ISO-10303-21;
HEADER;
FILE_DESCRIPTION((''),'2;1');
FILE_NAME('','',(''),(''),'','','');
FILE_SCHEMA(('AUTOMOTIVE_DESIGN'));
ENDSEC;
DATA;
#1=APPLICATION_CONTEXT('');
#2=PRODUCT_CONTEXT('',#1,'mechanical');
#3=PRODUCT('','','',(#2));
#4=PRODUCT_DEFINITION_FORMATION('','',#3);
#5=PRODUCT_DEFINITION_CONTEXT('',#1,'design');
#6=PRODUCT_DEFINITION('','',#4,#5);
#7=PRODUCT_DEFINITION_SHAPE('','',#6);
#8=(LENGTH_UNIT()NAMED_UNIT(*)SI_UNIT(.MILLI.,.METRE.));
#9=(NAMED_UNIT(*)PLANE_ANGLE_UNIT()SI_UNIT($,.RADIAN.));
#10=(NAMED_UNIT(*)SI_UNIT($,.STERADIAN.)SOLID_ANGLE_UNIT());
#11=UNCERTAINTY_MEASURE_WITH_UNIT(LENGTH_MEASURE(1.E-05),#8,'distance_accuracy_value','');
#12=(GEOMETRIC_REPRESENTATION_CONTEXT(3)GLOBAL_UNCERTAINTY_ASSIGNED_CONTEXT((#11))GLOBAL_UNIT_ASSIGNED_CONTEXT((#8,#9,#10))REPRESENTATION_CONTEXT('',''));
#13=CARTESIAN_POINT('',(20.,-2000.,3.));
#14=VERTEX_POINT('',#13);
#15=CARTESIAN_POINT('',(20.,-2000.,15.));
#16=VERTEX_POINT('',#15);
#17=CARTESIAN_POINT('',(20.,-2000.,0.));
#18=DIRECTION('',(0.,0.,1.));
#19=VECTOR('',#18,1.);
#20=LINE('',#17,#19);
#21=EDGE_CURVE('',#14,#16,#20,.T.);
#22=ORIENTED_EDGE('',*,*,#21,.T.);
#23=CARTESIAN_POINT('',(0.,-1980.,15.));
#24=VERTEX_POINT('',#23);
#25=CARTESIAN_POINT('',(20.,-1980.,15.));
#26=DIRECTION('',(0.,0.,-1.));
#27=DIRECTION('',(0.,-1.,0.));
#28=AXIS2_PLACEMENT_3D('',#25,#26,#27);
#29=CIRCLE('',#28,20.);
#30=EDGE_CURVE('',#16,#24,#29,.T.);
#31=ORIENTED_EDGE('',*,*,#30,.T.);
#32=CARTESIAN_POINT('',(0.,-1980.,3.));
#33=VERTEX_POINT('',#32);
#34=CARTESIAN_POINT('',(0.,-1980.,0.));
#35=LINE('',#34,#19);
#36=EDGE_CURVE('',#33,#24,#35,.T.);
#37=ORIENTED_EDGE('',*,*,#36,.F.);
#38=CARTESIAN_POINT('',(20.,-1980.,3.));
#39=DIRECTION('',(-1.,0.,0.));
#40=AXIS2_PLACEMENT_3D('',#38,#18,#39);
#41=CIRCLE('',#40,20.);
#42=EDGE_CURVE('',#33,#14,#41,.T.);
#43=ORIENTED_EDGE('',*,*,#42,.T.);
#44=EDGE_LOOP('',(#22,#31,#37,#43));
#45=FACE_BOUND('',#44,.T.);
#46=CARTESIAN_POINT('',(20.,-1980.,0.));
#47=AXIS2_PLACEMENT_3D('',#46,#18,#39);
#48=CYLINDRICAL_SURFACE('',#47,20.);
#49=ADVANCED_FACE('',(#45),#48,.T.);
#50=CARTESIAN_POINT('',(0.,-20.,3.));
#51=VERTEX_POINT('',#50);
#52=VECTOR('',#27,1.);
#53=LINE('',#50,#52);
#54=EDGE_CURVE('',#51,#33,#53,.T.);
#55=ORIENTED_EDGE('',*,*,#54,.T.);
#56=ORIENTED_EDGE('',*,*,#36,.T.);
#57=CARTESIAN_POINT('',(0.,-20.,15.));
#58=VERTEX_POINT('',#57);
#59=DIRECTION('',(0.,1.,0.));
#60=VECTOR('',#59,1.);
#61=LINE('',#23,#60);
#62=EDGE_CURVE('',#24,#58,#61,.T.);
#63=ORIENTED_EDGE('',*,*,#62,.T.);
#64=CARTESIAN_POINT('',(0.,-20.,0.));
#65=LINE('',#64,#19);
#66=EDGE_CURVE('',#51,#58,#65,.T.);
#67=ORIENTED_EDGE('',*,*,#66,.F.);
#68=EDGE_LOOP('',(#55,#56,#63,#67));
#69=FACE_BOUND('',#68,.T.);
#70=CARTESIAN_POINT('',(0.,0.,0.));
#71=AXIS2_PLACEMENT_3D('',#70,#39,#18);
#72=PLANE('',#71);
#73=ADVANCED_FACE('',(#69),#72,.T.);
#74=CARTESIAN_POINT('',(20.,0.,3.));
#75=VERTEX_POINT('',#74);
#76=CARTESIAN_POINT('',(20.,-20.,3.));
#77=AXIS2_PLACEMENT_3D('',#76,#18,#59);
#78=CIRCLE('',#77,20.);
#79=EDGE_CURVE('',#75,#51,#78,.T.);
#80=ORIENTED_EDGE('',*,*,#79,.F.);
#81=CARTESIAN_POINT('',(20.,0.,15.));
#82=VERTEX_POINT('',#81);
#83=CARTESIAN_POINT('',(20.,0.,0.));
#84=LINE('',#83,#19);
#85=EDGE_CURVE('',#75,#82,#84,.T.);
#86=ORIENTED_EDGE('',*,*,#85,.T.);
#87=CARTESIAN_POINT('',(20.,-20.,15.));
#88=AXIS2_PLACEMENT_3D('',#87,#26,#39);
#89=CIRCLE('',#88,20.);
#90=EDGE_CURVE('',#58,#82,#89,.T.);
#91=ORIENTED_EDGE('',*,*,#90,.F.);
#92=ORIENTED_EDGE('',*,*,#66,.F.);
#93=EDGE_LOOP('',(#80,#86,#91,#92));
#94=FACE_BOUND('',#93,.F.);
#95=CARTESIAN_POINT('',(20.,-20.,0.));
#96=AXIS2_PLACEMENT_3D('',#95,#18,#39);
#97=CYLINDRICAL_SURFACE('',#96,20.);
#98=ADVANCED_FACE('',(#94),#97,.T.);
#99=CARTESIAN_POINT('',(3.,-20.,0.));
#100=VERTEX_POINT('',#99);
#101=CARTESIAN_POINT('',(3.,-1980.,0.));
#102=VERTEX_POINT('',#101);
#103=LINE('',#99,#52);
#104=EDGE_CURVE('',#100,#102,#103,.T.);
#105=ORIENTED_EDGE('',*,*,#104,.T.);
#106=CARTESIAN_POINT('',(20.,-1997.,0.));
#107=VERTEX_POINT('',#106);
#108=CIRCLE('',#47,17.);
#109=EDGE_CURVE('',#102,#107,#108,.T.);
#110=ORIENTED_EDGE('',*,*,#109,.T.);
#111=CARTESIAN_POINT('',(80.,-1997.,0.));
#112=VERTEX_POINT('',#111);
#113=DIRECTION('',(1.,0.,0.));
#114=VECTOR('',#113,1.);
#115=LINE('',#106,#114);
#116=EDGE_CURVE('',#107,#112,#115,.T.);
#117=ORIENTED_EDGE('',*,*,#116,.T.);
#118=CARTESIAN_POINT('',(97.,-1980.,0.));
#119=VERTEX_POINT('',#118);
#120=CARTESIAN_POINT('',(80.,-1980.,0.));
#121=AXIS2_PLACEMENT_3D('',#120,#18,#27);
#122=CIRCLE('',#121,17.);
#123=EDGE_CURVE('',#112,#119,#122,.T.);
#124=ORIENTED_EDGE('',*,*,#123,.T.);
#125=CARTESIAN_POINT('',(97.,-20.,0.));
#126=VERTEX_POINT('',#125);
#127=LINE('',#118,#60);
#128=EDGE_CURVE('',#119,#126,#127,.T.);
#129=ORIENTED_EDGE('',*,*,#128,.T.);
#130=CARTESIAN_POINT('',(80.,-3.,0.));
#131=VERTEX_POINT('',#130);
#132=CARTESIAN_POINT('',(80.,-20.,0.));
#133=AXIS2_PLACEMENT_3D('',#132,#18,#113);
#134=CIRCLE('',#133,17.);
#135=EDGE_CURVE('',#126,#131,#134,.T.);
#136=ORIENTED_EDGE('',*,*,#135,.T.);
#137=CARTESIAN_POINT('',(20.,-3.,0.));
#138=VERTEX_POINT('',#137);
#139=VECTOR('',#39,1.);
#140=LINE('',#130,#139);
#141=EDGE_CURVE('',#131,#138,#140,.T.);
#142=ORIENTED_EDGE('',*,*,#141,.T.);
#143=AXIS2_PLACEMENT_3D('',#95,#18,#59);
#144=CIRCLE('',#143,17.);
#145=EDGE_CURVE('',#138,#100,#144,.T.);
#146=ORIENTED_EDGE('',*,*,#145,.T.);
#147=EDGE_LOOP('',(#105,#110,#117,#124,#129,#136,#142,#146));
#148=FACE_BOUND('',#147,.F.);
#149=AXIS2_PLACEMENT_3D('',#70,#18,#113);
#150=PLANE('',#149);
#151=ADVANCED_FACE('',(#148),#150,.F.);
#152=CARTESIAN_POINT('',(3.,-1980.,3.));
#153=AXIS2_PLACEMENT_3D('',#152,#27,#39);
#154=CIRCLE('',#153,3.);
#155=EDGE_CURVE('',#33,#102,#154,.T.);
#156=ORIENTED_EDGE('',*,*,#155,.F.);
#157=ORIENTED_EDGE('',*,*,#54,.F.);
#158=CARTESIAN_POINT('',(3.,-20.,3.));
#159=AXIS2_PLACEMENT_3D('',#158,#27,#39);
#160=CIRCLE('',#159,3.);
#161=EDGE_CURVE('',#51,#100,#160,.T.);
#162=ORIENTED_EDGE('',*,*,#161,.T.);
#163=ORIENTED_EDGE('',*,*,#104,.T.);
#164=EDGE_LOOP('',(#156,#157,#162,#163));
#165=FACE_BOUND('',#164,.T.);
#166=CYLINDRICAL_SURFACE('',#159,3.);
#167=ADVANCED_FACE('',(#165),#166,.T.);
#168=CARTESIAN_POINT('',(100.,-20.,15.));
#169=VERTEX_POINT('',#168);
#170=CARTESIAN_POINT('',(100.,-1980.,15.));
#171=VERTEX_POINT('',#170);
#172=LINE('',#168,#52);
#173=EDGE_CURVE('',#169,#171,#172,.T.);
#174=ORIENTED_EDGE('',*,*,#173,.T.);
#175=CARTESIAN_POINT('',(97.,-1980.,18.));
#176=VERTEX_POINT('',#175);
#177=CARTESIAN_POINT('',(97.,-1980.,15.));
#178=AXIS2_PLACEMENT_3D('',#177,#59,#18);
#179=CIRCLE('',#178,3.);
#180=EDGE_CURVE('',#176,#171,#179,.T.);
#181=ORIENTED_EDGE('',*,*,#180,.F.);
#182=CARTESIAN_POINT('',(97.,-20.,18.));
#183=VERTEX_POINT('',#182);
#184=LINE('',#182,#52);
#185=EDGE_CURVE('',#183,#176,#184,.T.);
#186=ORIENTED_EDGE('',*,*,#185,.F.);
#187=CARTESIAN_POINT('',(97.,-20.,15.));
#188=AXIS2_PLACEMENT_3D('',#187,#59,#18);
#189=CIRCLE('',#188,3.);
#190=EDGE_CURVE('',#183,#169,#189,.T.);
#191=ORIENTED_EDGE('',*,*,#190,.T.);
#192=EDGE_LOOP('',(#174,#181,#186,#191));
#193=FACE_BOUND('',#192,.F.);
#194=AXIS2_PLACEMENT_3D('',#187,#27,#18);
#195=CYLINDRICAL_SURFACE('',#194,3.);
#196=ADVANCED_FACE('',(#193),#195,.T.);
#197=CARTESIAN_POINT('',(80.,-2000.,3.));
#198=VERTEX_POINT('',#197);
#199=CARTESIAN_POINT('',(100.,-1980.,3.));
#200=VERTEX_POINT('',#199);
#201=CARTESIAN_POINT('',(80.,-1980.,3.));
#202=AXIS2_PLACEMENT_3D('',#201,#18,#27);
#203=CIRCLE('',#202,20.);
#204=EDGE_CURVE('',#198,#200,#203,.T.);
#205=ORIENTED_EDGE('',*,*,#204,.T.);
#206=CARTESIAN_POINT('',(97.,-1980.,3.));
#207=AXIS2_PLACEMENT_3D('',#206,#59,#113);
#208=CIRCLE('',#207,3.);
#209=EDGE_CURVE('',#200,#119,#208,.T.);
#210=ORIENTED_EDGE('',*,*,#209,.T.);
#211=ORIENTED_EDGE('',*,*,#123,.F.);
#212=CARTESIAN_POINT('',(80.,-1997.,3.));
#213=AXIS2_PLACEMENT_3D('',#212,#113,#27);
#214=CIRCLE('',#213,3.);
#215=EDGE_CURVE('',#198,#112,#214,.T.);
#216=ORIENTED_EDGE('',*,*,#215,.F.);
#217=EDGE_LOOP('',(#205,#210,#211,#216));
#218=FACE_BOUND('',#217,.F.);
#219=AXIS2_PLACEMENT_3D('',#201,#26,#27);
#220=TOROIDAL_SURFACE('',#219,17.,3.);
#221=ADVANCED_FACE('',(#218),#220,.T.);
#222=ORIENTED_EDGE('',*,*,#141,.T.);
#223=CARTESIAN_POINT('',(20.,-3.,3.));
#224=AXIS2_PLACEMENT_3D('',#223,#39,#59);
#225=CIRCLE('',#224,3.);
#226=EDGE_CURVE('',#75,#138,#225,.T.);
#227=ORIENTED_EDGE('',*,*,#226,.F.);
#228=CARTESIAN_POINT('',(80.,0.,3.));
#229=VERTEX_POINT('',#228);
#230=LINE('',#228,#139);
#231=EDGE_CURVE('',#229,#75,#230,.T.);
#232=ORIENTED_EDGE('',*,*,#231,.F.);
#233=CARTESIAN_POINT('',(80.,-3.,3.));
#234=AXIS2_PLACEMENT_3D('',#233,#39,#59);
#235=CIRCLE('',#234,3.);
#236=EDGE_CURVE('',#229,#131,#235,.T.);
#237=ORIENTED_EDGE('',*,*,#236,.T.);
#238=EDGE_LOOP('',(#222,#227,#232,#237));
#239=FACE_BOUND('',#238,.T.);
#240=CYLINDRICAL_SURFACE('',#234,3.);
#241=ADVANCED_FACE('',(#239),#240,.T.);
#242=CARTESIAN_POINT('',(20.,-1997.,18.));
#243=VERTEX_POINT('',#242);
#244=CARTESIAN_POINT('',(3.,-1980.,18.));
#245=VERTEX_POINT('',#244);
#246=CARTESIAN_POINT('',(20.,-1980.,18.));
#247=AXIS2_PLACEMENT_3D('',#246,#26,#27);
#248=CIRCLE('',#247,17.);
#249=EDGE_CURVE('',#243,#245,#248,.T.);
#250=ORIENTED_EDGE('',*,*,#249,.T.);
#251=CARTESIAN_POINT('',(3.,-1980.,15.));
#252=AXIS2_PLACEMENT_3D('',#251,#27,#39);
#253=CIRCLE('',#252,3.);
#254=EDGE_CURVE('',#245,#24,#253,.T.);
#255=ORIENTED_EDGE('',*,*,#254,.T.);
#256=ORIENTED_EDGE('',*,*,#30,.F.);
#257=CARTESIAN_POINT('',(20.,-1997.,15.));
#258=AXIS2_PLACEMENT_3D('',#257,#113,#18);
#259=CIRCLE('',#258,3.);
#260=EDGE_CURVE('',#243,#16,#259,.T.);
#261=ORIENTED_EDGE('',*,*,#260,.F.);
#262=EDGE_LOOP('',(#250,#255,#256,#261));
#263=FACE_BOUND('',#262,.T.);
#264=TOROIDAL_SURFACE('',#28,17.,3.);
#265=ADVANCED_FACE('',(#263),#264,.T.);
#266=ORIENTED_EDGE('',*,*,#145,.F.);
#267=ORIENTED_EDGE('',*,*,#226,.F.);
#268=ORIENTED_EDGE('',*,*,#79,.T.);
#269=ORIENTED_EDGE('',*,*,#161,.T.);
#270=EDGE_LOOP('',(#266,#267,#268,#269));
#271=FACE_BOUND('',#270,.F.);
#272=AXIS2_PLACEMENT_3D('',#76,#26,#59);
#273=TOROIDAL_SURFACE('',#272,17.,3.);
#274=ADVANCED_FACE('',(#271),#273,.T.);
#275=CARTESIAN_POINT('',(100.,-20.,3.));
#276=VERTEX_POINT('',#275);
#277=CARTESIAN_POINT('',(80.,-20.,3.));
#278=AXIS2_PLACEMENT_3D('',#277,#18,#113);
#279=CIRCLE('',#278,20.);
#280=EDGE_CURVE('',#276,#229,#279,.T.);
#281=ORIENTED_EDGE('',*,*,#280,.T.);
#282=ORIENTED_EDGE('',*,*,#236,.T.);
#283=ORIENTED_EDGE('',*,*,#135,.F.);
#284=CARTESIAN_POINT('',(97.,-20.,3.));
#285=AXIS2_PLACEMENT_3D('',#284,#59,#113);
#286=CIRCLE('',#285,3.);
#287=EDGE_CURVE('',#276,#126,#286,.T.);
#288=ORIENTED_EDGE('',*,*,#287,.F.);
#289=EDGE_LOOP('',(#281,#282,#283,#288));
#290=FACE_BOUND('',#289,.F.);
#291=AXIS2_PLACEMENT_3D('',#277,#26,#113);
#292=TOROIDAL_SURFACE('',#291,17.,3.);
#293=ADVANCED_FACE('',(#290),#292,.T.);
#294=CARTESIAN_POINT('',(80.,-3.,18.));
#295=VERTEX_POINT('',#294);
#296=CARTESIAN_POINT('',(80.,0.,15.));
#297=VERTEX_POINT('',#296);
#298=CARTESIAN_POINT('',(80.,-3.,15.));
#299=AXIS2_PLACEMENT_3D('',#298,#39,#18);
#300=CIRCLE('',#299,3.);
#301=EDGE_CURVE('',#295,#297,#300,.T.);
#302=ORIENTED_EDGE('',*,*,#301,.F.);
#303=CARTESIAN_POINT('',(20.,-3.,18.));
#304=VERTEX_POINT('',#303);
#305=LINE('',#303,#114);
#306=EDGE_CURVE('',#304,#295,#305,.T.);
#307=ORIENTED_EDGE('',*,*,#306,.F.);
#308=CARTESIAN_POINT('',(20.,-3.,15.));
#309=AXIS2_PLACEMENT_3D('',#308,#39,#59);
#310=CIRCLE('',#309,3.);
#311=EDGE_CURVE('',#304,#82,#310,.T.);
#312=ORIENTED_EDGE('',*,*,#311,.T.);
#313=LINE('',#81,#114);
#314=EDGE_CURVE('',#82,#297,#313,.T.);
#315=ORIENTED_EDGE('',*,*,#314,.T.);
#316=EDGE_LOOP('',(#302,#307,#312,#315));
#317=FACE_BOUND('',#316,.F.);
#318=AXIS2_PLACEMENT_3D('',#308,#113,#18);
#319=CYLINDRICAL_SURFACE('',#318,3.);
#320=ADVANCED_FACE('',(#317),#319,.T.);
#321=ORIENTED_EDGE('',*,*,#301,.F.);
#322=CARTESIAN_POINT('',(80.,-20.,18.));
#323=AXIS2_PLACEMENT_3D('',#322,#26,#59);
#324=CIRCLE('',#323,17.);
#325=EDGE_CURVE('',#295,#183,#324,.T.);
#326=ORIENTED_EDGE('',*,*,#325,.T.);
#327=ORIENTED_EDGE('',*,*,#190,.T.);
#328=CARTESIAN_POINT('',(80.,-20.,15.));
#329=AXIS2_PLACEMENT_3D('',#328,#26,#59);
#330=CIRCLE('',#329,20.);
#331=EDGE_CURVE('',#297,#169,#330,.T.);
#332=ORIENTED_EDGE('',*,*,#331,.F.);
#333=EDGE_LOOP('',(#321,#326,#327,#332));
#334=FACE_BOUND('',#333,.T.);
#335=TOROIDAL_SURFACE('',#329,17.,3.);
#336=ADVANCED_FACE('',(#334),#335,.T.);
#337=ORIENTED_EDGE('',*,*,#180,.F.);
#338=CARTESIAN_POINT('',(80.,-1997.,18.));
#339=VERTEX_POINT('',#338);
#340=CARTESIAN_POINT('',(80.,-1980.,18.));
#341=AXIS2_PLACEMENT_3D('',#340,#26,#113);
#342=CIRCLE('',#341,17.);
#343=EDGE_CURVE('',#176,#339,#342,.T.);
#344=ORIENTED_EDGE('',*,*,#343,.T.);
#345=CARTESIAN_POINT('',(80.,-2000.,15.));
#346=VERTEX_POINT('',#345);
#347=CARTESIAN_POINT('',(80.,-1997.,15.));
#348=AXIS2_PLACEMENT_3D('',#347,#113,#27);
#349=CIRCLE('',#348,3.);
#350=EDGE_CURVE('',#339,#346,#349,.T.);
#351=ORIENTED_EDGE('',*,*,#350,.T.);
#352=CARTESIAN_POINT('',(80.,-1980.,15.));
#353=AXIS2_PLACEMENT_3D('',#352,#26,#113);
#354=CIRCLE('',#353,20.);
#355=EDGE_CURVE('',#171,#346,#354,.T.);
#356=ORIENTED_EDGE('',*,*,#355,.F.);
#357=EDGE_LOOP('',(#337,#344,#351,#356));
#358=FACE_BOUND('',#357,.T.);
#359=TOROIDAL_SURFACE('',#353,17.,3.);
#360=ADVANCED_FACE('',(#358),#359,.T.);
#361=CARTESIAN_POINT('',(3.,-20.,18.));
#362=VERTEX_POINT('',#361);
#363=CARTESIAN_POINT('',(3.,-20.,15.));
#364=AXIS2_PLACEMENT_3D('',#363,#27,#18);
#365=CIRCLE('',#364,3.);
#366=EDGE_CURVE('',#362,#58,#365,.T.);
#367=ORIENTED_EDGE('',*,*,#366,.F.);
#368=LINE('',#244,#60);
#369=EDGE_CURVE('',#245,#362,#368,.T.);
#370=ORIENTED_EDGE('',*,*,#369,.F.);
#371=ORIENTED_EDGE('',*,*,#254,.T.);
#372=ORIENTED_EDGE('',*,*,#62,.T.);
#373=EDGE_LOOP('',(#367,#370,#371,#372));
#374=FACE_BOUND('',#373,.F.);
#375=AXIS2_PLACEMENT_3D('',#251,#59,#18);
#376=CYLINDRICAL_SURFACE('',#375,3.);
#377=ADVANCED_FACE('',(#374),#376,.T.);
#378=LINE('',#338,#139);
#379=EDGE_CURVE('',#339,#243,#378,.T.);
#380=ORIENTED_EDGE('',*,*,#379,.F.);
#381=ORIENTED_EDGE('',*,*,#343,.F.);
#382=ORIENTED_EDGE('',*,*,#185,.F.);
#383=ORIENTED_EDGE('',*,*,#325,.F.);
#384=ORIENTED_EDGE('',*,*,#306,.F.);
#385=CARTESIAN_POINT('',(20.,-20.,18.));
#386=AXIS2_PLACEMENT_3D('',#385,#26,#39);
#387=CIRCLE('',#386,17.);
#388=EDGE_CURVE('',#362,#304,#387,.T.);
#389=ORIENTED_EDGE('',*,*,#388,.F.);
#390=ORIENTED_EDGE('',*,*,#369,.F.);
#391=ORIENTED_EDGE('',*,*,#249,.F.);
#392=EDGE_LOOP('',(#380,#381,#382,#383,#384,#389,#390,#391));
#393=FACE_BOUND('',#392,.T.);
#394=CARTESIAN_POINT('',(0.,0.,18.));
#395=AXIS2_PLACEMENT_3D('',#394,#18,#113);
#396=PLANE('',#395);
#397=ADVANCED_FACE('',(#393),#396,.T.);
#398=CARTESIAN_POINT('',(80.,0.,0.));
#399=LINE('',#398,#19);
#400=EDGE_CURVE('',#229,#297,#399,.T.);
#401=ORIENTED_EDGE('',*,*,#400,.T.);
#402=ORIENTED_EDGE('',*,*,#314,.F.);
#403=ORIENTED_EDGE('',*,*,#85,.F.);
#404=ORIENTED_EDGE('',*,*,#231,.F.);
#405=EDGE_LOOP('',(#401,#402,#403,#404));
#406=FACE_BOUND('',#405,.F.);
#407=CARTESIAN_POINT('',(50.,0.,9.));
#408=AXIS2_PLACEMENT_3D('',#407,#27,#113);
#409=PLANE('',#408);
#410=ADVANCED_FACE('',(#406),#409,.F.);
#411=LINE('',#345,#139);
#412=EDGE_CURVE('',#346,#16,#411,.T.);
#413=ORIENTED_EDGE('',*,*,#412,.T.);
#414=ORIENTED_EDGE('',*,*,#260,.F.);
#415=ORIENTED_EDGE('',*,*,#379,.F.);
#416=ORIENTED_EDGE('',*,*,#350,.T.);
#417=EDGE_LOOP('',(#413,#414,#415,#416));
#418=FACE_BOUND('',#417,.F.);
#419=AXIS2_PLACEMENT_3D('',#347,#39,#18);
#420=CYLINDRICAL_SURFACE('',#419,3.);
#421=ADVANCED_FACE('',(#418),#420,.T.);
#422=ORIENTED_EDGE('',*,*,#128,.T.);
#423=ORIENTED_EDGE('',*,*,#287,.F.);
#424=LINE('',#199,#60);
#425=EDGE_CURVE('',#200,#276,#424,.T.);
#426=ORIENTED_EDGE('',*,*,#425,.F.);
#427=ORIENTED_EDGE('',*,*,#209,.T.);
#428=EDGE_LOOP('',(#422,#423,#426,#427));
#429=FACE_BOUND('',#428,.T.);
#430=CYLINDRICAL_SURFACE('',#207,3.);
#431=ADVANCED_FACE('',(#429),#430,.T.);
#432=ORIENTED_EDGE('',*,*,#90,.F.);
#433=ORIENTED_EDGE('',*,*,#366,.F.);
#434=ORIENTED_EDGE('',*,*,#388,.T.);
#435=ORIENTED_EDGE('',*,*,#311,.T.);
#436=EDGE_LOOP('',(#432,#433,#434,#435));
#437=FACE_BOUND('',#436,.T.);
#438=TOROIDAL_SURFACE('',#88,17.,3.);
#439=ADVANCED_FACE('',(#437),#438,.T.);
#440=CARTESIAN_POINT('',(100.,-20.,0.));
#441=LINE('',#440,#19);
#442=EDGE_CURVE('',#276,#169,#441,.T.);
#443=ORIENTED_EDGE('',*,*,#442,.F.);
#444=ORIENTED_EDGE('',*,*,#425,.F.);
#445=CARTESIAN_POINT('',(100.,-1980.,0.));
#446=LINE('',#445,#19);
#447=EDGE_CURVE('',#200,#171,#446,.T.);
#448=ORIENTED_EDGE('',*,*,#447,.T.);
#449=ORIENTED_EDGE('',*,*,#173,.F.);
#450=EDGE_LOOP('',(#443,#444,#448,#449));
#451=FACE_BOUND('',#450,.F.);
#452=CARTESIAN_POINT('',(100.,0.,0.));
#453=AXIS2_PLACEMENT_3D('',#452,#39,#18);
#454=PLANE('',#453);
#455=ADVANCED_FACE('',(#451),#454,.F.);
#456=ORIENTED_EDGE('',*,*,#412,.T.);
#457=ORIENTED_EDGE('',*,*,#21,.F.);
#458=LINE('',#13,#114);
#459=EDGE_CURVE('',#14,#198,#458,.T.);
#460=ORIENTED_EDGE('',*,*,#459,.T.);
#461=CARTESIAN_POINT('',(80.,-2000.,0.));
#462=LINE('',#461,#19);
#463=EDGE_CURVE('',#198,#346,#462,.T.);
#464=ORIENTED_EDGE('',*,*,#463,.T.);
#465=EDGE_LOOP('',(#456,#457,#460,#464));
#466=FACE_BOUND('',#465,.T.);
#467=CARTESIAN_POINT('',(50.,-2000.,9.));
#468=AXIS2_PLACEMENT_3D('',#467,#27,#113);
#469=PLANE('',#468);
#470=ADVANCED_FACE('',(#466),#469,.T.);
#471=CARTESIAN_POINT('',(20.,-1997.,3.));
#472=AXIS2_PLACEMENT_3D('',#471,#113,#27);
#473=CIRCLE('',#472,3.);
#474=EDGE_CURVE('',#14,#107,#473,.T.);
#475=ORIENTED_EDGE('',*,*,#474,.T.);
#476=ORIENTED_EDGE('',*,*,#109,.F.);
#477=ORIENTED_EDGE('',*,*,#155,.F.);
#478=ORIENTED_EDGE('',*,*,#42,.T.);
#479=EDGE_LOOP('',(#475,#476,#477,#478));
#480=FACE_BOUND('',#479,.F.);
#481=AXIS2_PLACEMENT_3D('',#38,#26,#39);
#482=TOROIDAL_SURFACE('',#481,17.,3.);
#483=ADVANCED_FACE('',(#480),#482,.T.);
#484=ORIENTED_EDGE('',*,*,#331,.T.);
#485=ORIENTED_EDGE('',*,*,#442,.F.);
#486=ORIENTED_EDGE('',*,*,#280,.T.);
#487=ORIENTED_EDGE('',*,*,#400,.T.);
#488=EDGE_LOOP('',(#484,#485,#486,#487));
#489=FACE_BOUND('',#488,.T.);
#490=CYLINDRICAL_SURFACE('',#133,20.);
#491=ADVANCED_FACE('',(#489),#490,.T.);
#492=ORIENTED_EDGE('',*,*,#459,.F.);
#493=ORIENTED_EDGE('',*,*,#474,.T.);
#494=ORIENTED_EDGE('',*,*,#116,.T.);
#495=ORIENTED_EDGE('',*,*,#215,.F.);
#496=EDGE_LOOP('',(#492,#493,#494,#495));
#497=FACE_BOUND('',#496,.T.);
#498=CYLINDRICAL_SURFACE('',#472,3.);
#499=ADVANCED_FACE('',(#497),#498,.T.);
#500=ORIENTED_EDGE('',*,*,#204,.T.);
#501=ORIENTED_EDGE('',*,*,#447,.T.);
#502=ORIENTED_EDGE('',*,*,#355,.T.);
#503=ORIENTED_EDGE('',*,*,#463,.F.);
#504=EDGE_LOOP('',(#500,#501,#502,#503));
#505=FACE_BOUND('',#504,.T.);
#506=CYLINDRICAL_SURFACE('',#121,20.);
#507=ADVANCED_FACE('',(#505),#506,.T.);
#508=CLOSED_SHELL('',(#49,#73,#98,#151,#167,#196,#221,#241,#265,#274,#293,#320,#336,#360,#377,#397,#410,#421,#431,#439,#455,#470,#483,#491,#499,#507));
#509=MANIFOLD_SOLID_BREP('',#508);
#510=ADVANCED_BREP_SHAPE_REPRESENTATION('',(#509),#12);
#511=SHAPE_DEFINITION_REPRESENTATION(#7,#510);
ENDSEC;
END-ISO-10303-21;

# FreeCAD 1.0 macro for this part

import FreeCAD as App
import Part
import Sketcher
from FreeCAD import Vector
Q = App.Units.Quantity


def edges_at(feature, points):
    """Names of the edges that pass closest to the given points."""
    edges = feature.Shape.Edges
    near = lambda p: min(range(len(edges)), key=lambda i: edges[i].distToShape(Part.Vertex(*p))[0])
    return sorted({f"Edge{near(p) + 1}" for p in points})

doc = App.newDocument("Part")
params = doc.addObject("Spreadsheet::Sheet", "Params")
for row, (alias, value) in enumerate([
    ("sketch1_width", "100 mm"),
    ("sketch1_height", "18 mm"),
    ("pad1_length", "2000 mm"),
    ("fillet_radius", "20 mm"),
    ("fillet2_radius", "20 mm"),
    ("fillet3_radius", "3 mm"),
], start=1):
    params.set(f"A{row}", alias)
    params.set(f"B{row}", "=" + value)
    params.setAlias(f"B{row}", alias)

body = doc.addObject("PartDesign::Body", "Body")

sketch1 = body.newObject("Sketcher::SketchObject", "Sketch")
sketch1.AttachmentSupport = (doc.getObject("XZ_Plane"), [""])
sketch1.MapMode = "FlatFace"
sketch1.addGeometry([
    Part.LineSegment(Vector(0, 18, 0), Vector(0, 0, 0)),
    Part.LineSegment(Vector(0, 0, 0), Vector(100, 0, 0)),
    Part.LineSegment(Vector(100, 0, 0), Vector(100, 18, 0)),
    Part.LineSegment(Vector(100, 18, 0), Vector(0, 18, 0)),
], False)
sketch1.addConstraint([
    Sketcher.Constraint("Coincident", 0, 2, 1, 1),
    Sketcher.Constraint("Coincident", 1, 2, 2, 1),
    Sketcher.Constraint("Coincident", 2, 2, 3, 1),
    Sketcher.Constraint("Coincident", 3, 2, 0, 1),
    Sketcher.Constraint("Vertical", 0),
    Sketcher.Constraint("Horizontal", 1),
    Sketcher.Constraint("Vertical", 2),
    Sketcher.Constraint("Horizontal", 3),
    Sketcher.Constraint("Coincident", 0, 2, -1, 1),
    Sketcher.Constraint("DistanceX", 1, 1, 1, 2, Q("100 mm")),
    Sketcher.Constraint("DistanceY", 0, 2, 0, 1, Q("18 mm")),
])
sketch1.setExpression("Constraints[9]", "Params.sketch1_width")
sketch1.setExpression("Constraints[10]", "Params.sketch1_height")
pad1 = body.newObject("PartDesign::Pad", "Pad")
pad1.Profile = sketch1
pad1.setExpression("Length", "Params.pad1_length")
doc.recompute()

fillet = body.newObject("PartDesign::Fillet", "Fillet")
fillet.Base = (pad1, edges_at(pad1, [(100, 0, 9), (0, 0, 9)]))
fillet.setExpression("Radius", "Params.fillet_radius")
doc.recompute()

fillet2 = body.newObject("PartDesign::Fillet", "Fillet001")
fillet2.Base = (fillet, edges_at(fillet, [(100, -2000, 9), (0, -2000, 9)]))
fillet2.setExpression("Radius", "Params.fillet2_radius")
doc.recompute()

fillet3 = body.newObject("PartDesign::Fillet", "Fillet002")
fillet3.Base = (fillet2, edges_at(fillet2, [
    (100, -1000, 18),
    (0, -1000, 0),
    (5.858, -1994.142, 0),
    (5.858, -5.858, 0),
    (50, -2000, 0),
    (50, 0, 0),
    (94.142, -1994.142, 0),
    (94.142, -5.858, 0),
    (100, -1000, 0),
]))
fillet3.setExpression("Radius", "Params.fillet3_radius")

doc.recompute()
